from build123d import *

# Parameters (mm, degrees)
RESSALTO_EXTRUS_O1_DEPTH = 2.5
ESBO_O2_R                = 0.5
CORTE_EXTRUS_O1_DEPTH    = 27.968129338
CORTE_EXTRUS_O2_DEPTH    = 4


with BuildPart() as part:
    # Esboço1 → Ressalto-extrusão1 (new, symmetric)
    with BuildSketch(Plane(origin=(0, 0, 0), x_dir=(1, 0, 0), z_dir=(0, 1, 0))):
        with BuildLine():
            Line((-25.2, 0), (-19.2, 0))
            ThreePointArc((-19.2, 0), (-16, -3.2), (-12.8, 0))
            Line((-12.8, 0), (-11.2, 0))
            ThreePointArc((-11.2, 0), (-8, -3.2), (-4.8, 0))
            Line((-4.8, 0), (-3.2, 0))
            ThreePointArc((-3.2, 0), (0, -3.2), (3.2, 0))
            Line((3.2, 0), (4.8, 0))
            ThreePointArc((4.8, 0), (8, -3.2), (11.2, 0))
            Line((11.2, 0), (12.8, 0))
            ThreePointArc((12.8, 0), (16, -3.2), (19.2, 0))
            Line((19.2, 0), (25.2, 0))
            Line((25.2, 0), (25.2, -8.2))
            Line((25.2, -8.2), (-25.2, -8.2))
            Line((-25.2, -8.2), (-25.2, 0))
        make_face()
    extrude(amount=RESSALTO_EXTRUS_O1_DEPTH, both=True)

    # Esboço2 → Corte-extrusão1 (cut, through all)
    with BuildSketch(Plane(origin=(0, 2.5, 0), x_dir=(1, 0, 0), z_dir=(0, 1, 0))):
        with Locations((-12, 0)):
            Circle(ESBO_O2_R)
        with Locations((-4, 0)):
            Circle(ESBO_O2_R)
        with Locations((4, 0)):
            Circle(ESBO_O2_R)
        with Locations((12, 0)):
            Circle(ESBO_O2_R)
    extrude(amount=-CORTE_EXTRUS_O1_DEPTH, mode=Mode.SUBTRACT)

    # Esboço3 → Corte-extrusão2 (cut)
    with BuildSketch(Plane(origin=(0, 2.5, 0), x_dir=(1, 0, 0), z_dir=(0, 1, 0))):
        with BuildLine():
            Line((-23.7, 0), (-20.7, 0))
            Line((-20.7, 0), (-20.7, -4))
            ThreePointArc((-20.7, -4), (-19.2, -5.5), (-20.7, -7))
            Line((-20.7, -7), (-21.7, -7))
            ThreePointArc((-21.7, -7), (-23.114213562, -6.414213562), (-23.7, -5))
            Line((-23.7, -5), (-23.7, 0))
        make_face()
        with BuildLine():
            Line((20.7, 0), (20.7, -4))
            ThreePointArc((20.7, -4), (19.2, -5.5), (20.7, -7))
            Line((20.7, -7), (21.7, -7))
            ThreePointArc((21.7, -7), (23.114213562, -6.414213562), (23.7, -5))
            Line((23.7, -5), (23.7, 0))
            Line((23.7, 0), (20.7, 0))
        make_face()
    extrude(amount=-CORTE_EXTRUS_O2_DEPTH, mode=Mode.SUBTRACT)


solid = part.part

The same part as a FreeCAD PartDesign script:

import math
import FreeCAD as App
import Part
import Sketcher
from FreeCAD import Vector

doc = App.newDocument("Part")
body = doc.addObject("PartDesign::Body", "Body")

# Sketch on XZ plane
sketch1 = doc.addObject("Sketcher::SketchObject", "Sketch")
body.addObject(sketch1)
sketch1.AttachmentSupport = (doc.XZ_Plane, [""])
sketch1.MapMode = "FlatFace"
sketch1.addGeometry(Part.LineSegment(Vector(-19.2, 0, 0), Vector(-25.2, 0, 0)), False)
sketch1.addGeometry(Part.LineSegment(Vector(-25.2, 0, 0), Vector(-25.2, 8.2, 0)), False)
sketch1.addGeometry(Part.LineSegment(Vector(-25.2, 8.2, 0), Vector(25.2, 8.2, 0)), False)
sketch1.addGeometry(Part.LineSegment(Vector(25.2, 8.2, 0), Vector(25.2, 0, 0)), False)
sketch1.addGeometry(Part.LineSegment(Vector(25.2, 0, 0), Vector(19.2, 0, 0)), False)
sketch1.addGeometry(Part.ArcOfCircle(Part.Circle(Vector(16, 0, 0), Vector(0, 0, 1), 3.2), math.radians(0), math.radians(180)), False)
sketch1.addGeometry(Part.LineSegment(Vector(12.8, 0, 0), Vector(11.2, 0, 0)), False)
sketch1.addGeometry(Part.ArcOfCircle(Part.Circle(Vector(8, 0, 0), Vector(0, 0, 1), 3.2), math.radians(0), math.radians(180)), False)
sketch1.addGeometry(Part.LineSegment(Vector(4.8, 0, 0), Vector(3.2, 0, 0)), False)
sketch1.addGeometry(Part.ArcOfCircle(Part.Circle(Vector(0, 0, 0), Vector(0, 0, 1), 3.2), math.radians(0), math.radians(180)), False)
sketch1.addGeometry(Part.LineSegment(Vector(-3.2, 0, 0), Vector(-4.8, 0, 0)), False)
sketch1.addGeometry(Part.ArcOfCircle(Part.Circle(Vector(-8, 0, 0), Vector(0, 0, 1), 3.2), math.radians(0), math.radians(180)), False)
sketch1.addGeometry(Part.LineSegment(Vector(-11.2, 0, 0), Vector(-12.8, 0, 0)), False)
sketch1.addGeometry(Part.ArcOfCircle(Part.Circle(Vector(-16, 0, 0), Vector(0, 0, 1), 3.2), math.radians(0), math.radians(180)), False)
sketch1.addConstraint(Sketcher.Constraint("Coincident", 0, 2, 1, 1))
sketch1.addConstraint(Sketcher.Constraint("Coincident", 1, 2, 2, 1))
sketch1.addConstraint(Sketcher.Constraint("Coincident", 2, 2, 3, 1))
sketch1.addConstraint(Sketcher.Constraint("Coincident", 3, 2, 4, 1))
sketch1.addConstraint(Sketcher.Constraint("Coincident", 4, 2, 5, 1))
sketch1.addConstraint(Sketcher.Constraint("Coincident", 5, 2, 6, 1))
sketch1.addConstraint(Sketcher.Constraint("Coincident", 6, 2, 7, 1))
sketch1.addConstraint(Sketcher.Constraint("Coincident", 7, 2, 8, 1))
sketch1.addConstraint(Sketcher.Constraint("Coincident", 8, 2, 9, 1))
sketch1.addConstraint(Sketcher.Constraint("Coincident", 9, 2, 10, 1))
sketch1.addConstraint(Sketcher.Constraint("Coincident", 10, 2, 11, 1))
sketch1.addConstraint(Sketcher.Constraint("Coincident", 11, 2, 12, 1))
sketch1.addConstraint(Sketcher.Constraint("Coincident", 12, 2, 13, 1))
sketch1.addConstraint(Sketcher.Constraint("Coincident", 13, 2, 0, 1))
sketch1.addConstraint(Sketcher.Constraint("Horizontal", 0))
sketch1.addConstraint(Sketcher.Constraint("Vertical", 1))
sketch1.addConstraint(Sketcher.Constraint("Horizontal", 2))
sketch1.addConstraint(Sketcher.Constraint("Vertical", 3))
sketch1.addConstraint(Sketcher.Constraint("Horizontal", 4))
sketch1.addConstraint(Sketcher.Constraint("Horizontal", 6))
sketch1.addConstraint(Sketcher.Constraint("Horizontal", 8))
sketch1.addConstraint(Sketcher.Constraint("Horizontal", 10))
sketch1.addConstraint(Sketcher.Constraint("Horizontal", 12))
sketch1.addConstraint(Sketcher.Constraint("Coincident", 9, 3, -1, 1))
sketch1.addConstraint(Sketcher.Constraint("Equal", 5, 7))
sketch1.addConstraint(Sketcher.Constraint("Equal", 7, 9))
sketch1.addConstraint(Sketcher.Constraint("Equal", 9, 11))
sketch1.addConstraint(Sketcher.Constraint("Equal", 11, 13))
sketch1.addConstraint(Sketcher.Constraint("Symmetric", 7, 3, 11, 3, -1, 1))
sketch1.addConstraint(Sketcher.Constraint("Symmetric", 5, 3, 13, 3, -1, 1))
sketch1.addConstraint(Sketcher.Constraint("Symmetric", 0, 2, 3, 2, -1, 1))
sketch1.addConstraint(Sketcher.Constraint("PointOnObject", 5, 3, -1))
sketch1.addConstraint(Sketcher.Constraint("PointOnObject", 7, 3, -1))
sketch1.addConstraint(Sketcher.Constraint("PointOnObject", 0, 2, -1))
sketch1.addConstraint(Sketcher.Constraint("PointOnObject", 5, 2, -1))
sketch1.addConstraint(Sketcher.Constraint("PointOnObject", 7, 2, -1))
sketch1.addConstraint(Sketcher.Constraint("PointOnObject", 9, 2, -1))
sketch1.addConstraint(Sketcher.Constraint("PointOnObject", 11, 2, -1))
sketch1.addConstraint(Sketcher.Constraint("Equal", 6, 8))
sketch1.addConstraint(Sketcher.Constraint("Radius", 5, 3.2))
sketch1.addConstraint(Sketcher.Constraint("DistanceX", 0, 2, 0, 1, 6.0))
sketch1.addConstraint(Sketcher.Constraint("DistanceX", 2, 1, 2, 2, 50.4))
sketch1.addConstraint(Sketcher.Constraint("DistanceY", 1, 1, 1, 2, 8.2))
pad1 = doc.addObject("PartDesign::Pad", "Pad")
body.addObject(pad1)
pad1.Profile = sketch1
pad1.Length = 5
pad1.Midplane = True

# Sketch on XZ plane
sketch2 = doc.addObject("Sketcher::SketchObject", "Sketch001")
body.addObject(sketch2)
sketch2.AttachmentSupport = (doc.XZ_Plane, [""])
sketch2.MapMode = "FlatFace"
sketch2.AttachmentOffset = App.Placement(Vector(0, 0, -2.5), App.Rotation())
sketch2.addGeometry(Part.Circle(Vector(-12, 0, 0), Vector(0, 0, 1), 0.5), False)
sketch2.addGeometry(Part.Circle(Vector(-4, 0, 0), Vector(0, 0, 1), 0.5), False)
sketch2.addGeometry(Part.Circle(Vector(4, 0, 0), Vector(0, 0, 1), 0.5), False)
sketch2.addGeometry(Part.Circle(Vector(12, 0, 0), Vector(0, 0, 1), 0.5), False)
sketch2.addConstraint(Sketcher.Constraint("Equal", 0, 1))
sketch2.addConstraint(Sketcher.Constraint("Equal", 1, 2))
sketch2.addConstraint(Sketcher.Constraint("Equal", 2, 3))
sketch2.addConstraint(Sketcher.Constraint("Symmetric", 1, 3, 2, 3, -1, 1))
sketch2.addConstraint(Sketcher.Constraint("Symmetric", 0, 3, 3, 3, -1, 1))
sketch2.addConstraint(Sketcher.Constraint("PointOnObject", 0, 3, -1))
sketch2.addConstraint(Sketcher.Constraint("PointOnObject", 1, 3, -1))
sketch2.addConstraint(Sketcher.Constraint("Diameter", 0, 1.0))
sketch2.addConstraint(Sketcher.Constraint("DistanceX", 0, 3, -1, 1, 12.0))
sketch2.addConstraint(Sketcher.Constraint("DistanceX", 1, 3, -1, 1, 4.0))
pocket1 = doc.addObject("PartDesign::Pocket", "Pocket")
body.addObject(pocket1)
pocket1.Profile = sketch2
pocket1.Type = "ThroughAll"
pocket1.Reversed = True

# Sketch on XZ plane
sketch3 = doc.addObject("Sketcher::SketchObject", "Sketch002")
body.addObject(sketch3)
sketch3.AttachmentSupport = (doc.XZ_Plane, [""])
sketch3.MapMode = "FlatFace"
sketch3.AttachmentOffset = App.Placement(Vector(0, 0, -2.5), App.Rotation())
sketch3.addGeometry(Part.LineSegment(Vector(-20.7, 0, 0), Vector(-23.7, 0, 0)), False)
sketch3.addGeometry(Part.LineSegment(Vector(-23.7, 0, 0), Vector(-23.7, 5, 0)), False)
sketch3.addGeometry(Part.ArcOfCircle(Part.Circle(Vector(-21.7, 5, 0), Vector(0, 0, 1), 2), math.radians(90), math.radians(180)), False)
sketch3.addGeometry(Part.LineSegment(Vector(-21.7, 7, 0), Vector(-20.7, 7, 0)), False)
sketch3.addGeometry(Part.ArcOfCircle(Part.Circle(Vector(-20.7, 5.5, 0), Vector(0, 0, 1), 1.5), math.radians(-90), math.radians(90)), False)
sketch3.addGeometry(Part.LineSegment(Vector(-20.7, 4, 0), Vector(-20.7, 0, 0)), False)
sketch3.addGeometry(Part.LineSegment(Vector(20.7, 0, 0), Vector(20.7, 4, 0)), False)
sketch3.addGeometry(Part.ArcOfCircle(Part.Circle(Vector(20.7, 5.5, 0), Vector(0, 0, 1), 1.5), math.radians(90), math.radians(270)), False)
sketch3.addGeometry(Part.LineSegment(Vector(20.7, 7, 0), Vector(21.7, 7, 0)), False)
sketch3.addGeometry(Part.ArcOfCircle(Part.Circle(Vector(21.7, 5, 0), Vector(0, 0, 1), 2), math.radians(0), math.radians(90)), False)
sketch3.addGeometry(Part.LineSegment(Vector(23.7, 5, 0), Vector(23.7, 0, 0)), False)
sketch3.addGeometry(Part.LineSegment(Vector(23.7, 0, 0), Vector(20.7, 0, 0)), False)
sketch3.addConstraint(Sketcher.Constraint("Coincident", 0, 2, 1, 1))
sketch3.addConstraint(Sketcher.Constraint("Tangent", 1, 2, 2, 2))
sketch3.addConstraint(Sketcher.Constraint("Tangent", 2, 1, 3, 1))
sketch3.addConstraint(Sketcher.Constraint("Tangent", 3, 2, 4, 2))
sketch3.addConstraint(Sketcher.Constraint("Coincident", 4, 1, 5, 1))
sketch3.addConstraint(Sketcher.Constraint("Coincident", 5, 2, 0, 1))
sketch3.addConstraint(Sketcher.Constraint("Coincident", 6, 2, 7, 2))
sketch3.addConstraint(Sketcher.Constraint("Tangent", 7, 1, 8, 1))
sketch3.addConstraint(Sketcher.Constraint("Tangent", 8, 2, 9, 2))
sketch3.addConstraint(Sketcher.Constraint("Tangent", 9, 1, 10, 1))
sketch3.addConstraint(Sketcher.Constraint("Coincident", 10, 2, 11, 1))
sketch3.addConstraint(Sketcher.Constraint("Coincident", 11, 2, 6, 1))
sketch3.addConstraint(Sketcher.Constraint("Horizontal", 0))
sketch3.addConstraint(Sketcher.Constraint("Vertical", 1))
sketch3.addConstraint(Sketcher.Constraint("Horizontal", 3))
sketch3.addConstraint(Sketcher.Constraint("Vertical", 5))
sketch3.addConstraint(Sketcher.Constraint("Vertical", 6))
sketch3.addConstraint(Sketcher.Constraint("Horizontal", 8))
sketch3.addConstraint(Sketcher.Constraint("Vertical", 10))
sketch3.addConstraint(Sketcher.Constraint("Horizontal", 11))
sketch3.addConstraint(Sketcher.Constraint("Equal", 4, 7))
sketch3.addConstraint(Sketcher.Constraint("Equal", 2, 9))
sketch3.addConstraint(Sketcher.Constraint("Symmetric", 0, 2, 10, 2, -1, 1))
sketch3.addConstraint(Sketcher.Constraint("Symmetric", 4, 3, 7, 3, -2))
sketch3.addConstraint(Sketcher.Constraint("Symmetric", 5, 2, 11, 2, -2))
sketch3.addConstraint(Sketcher.Constraint("Vertical", 3, 2, 4, 1))
sketch3.addConstraint(Sketcher.Constraint("Radius", 2, 2.0))
sketch3.addConstraint(Sketcher.Constraint("Radius", 4, 1.5))
sketch3.addConstraint(Sketcher.Constraint("DistanceX", 0, 2, 0, 1, 3.0))
sketch3.addConstraint(Sketcher.Constraint("DistanceY", 1, 1, 1, 2, 5.0))
sketch3.addConstraint(Sketcher.Constraint("DistanceX", 2, 3, -1, 1, 21.7))
pocket2 = doc.addObject("PartDesign::Pocket", "Pocket001")
body.addObject(pocket2)
pocket2.Profile = sketch3
pocket2.Length = 4
pocket2.Reversed = True

doc.recompute()
